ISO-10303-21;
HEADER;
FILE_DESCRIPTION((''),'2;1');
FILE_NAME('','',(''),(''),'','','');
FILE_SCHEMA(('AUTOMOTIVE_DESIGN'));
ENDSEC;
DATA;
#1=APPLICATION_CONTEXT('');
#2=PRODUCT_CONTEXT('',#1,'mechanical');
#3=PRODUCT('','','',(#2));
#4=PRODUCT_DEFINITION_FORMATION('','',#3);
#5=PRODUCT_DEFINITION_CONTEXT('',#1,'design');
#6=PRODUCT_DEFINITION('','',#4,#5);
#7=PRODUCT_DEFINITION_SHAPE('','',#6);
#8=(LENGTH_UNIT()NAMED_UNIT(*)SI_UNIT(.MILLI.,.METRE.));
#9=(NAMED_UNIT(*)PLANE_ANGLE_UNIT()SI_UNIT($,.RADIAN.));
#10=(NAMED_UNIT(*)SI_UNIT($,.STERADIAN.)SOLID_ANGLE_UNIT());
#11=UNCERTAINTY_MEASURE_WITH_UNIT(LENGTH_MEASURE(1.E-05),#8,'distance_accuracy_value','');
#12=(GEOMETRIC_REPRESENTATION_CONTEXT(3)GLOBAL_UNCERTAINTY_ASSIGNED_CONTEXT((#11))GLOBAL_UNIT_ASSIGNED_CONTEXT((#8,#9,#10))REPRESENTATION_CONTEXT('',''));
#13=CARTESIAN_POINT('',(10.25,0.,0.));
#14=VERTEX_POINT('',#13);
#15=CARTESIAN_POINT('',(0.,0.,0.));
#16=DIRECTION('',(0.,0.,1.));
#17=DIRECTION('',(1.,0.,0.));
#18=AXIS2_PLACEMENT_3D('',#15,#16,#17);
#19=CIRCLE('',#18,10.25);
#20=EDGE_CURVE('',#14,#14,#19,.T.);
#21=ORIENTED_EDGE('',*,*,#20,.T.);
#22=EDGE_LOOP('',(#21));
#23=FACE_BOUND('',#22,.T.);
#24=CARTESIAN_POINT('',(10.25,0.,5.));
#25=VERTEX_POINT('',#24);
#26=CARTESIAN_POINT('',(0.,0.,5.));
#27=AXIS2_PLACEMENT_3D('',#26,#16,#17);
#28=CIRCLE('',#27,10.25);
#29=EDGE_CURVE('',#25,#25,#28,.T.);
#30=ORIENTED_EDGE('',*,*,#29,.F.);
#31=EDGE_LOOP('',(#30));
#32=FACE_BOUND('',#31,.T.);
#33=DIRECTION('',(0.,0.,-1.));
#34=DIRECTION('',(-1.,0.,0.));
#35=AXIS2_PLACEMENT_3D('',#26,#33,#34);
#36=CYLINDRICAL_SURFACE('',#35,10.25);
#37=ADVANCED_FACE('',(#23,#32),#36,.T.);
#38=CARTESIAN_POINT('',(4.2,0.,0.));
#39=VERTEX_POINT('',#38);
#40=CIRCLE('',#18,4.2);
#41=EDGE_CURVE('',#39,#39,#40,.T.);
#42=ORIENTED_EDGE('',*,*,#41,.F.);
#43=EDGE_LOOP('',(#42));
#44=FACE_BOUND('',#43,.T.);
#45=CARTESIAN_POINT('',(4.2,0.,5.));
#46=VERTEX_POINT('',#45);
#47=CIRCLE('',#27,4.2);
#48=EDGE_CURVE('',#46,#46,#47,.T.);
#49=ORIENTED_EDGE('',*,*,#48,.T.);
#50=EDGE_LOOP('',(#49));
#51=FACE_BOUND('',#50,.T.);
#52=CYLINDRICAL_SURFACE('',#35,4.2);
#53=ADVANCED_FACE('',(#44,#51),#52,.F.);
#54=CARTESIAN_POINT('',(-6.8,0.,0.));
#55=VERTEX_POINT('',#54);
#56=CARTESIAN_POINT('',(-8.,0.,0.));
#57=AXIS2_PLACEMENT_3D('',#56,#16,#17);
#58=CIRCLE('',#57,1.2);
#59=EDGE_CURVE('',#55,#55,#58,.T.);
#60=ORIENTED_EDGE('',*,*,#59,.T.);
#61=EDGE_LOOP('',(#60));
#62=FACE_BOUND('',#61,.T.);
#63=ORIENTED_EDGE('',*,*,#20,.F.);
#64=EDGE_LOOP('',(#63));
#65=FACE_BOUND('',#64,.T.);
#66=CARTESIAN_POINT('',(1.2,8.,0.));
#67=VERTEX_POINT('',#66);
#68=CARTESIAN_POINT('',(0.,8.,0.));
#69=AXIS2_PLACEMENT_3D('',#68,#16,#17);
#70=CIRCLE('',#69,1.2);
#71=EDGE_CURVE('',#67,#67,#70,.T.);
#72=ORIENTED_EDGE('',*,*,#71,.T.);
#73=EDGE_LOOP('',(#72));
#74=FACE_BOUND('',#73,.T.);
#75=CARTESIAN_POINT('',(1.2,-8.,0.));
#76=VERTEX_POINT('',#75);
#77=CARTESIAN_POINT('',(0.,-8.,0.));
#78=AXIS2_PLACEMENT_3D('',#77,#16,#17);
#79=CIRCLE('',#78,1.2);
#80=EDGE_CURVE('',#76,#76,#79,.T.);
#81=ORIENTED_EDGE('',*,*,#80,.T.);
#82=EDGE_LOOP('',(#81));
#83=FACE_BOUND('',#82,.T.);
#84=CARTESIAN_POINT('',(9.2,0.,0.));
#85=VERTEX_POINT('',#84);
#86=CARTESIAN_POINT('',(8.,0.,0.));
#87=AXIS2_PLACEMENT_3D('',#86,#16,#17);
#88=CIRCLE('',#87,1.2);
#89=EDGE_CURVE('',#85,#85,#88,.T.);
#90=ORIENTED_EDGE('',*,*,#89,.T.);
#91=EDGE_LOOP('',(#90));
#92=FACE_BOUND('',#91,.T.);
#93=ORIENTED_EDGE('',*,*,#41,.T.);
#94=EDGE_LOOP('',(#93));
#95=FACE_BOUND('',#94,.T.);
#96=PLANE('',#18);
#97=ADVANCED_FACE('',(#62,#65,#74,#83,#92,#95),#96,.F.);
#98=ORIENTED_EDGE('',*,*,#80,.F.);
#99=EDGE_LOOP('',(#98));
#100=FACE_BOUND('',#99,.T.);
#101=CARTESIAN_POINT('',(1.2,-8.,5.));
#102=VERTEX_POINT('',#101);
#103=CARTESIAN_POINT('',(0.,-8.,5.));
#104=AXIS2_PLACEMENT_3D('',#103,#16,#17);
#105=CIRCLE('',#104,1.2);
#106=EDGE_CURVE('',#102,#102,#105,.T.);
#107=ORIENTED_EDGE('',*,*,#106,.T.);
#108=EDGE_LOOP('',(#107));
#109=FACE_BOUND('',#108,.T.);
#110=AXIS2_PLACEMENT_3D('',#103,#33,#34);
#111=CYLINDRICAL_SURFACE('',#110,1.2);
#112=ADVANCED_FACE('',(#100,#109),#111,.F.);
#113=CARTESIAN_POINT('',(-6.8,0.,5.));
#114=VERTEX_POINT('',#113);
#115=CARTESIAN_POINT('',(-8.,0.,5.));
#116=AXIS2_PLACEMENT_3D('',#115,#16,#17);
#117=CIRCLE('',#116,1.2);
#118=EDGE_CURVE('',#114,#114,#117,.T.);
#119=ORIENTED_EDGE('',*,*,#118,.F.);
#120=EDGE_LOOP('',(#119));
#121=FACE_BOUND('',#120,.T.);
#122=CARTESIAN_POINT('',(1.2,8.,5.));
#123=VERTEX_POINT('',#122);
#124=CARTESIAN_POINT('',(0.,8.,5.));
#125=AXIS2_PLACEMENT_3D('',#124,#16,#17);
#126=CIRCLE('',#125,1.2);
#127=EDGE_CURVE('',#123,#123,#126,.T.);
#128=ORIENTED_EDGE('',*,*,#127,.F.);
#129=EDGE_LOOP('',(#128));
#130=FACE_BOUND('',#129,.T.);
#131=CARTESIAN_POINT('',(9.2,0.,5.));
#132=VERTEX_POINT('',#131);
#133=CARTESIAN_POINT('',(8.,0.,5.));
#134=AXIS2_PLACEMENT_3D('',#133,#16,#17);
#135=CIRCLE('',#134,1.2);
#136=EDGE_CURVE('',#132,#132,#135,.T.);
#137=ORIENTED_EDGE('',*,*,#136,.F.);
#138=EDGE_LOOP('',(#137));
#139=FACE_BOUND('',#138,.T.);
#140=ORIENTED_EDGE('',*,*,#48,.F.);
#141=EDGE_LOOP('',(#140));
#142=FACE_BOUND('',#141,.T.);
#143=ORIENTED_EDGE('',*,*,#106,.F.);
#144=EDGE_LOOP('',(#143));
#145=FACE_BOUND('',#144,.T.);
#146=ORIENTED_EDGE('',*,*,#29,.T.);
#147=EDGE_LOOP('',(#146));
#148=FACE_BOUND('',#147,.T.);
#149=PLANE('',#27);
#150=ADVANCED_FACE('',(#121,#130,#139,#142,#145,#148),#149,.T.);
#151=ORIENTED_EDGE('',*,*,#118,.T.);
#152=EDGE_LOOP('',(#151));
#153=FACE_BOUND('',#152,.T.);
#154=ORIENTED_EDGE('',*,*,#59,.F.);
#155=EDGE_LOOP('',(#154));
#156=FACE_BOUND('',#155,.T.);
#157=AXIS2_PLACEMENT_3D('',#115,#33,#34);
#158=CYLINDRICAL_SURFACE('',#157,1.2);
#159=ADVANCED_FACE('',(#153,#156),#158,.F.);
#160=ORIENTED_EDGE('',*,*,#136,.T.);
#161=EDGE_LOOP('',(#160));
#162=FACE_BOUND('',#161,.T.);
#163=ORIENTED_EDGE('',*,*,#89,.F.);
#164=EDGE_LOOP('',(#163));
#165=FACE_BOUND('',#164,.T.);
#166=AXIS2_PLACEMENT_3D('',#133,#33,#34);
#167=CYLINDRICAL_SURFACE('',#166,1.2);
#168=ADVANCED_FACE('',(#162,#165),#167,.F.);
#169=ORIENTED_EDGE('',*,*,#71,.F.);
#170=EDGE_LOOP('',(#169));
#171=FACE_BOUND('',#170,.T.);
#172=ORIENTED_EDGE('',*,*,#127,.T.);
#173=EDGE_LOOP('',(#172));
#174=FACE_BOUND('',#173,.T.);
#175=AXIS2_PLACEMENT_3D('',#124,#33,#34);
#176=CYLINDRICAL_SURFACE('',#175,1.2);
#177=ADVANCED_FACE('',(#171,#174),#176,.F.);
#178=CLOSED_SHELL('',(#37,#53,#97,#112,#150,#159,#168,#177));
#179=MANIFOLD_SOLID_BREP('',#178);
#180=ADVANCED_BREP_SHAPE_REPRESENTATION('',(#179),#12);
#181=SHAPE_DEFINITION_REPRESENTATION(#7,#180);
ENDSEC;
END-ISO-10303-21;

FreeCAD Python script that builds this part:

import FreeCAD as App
import Part
import Sketcher

V = App.Vector
Q = App.Units.Quantity

doc = App.newDocument("Part")
params = doc.addObject("Spreadsheet::Sheet", "Params")
for row, (alias, value) in enumerate([
    ("sketch1_diameter", "20.5 mm"),
    ("sketch1_diameter2", "2.4 mm"),
    ("sketch1_diameter3", "8.4 mm"),
    ("pad1_length", "5 mm"),
], start=1):
    params.set(f"A{row}", alias)
    params.set(f"B{row}", "=" + value)
    params.setAlias(f"B{row}", alias)

body = doc.addObject("PartDesign::Body", "Body")

# Sketch on XY plane
sketch1 = doc.addObject("Sketcher::SketchObject", "Sketch")
body.addObject(sketch1)
sketch1.AttachmentSupport = (doc.XY_Plane, [""])
sketch1.MapMode = "FlatFace"
sketch1.addGeometry(Part.Circle(V(0, 0, 0), V(0, 0, 1), 10.25), False)
sketch1.addGeometry(Part.Circle(V(0, -8, 0), V(0, 0, 1), 1.2), False)
sketch1.addGeometry(Part.Circle(V(-8, 0, 0), V(0, 0, 1), 1.2), False)
sketch1.addGeometry(Part.Circle(V(0, 0, 0), V(0, 0, 1), 4.2), False)
sketch1.addGeometry(Part.Circle(V(8, 0, 0), V(0, 0, 1), 1.2), False)
sketch1.addGeometry(Part.Circle(V(0, 8, 0), V(0, 0, 1), 1.2), False)
sketch1.addConstraint(Sketcher.Constraint("Coincident", 0, 3, -1, 1))
sketch1.addConstraint(Sketcher.Constraint("Coincident", 3, 3, -1, 1))
sketch1.addConstraint(Sketcher.Constraint("Equal", 1, 2))
sketch1.addConstraint(Sketcher.Constraint("Equal", 2, 4))
sketch1.addConstraint(Sketcher.Constraint("Equal", 4, 5))
sketch1.addConstraint(Sketcher.Constraint("Symmetric", 2, 3, 4, 3, -1, 1))
sketch1.addConstraint(Sketcher.Constraint("Symmetric", 1, 3, 5, 3, -1, 1))
sketch1.addConstraint(Sketcher.Constraint("PointOnObject", 1, 3, -2))
sketch1.addConstraint(Sketcher.Constraint("PointOnObject", 2, 3, -1))
sketch1.addConstraint(Sketcher.Constraint("Diameter", 0, Q("20.5 mm")))
sketch1.addConstraint(Sketcher.Constraint("Diameter", 1, Q("2.4 mm")))
sketch1.addConstraint(Sketcher.Constraint("Diameter", 3, Q("8.4 mm")))
sketch1.addConstraint(Sketcher.Constraint("DistanceY", 1, 3, -1, 1, Q("8 mm")))
sketch1.addConstraint(Sketcher.Constraint("DistanceX", 2, 3, -1, 1, Q("8 mm")))
sketch1.setExpression("Constraints[9]", "Params.sketch1_diameter")
sketch1.setExpression("Constraints[10]", "Params.sketch1_diameter2")
sketch1.setExpression("Constraints[11]", "Params.sketch1_diameter3")
pad1 = doc.addObject("PartDesign::Pad", "Pad")
body.addObject(pad1)
pad1.Profile = sketch1
pad1.setExpression("Length", "Params.pad1_length")

doc.recompute()
